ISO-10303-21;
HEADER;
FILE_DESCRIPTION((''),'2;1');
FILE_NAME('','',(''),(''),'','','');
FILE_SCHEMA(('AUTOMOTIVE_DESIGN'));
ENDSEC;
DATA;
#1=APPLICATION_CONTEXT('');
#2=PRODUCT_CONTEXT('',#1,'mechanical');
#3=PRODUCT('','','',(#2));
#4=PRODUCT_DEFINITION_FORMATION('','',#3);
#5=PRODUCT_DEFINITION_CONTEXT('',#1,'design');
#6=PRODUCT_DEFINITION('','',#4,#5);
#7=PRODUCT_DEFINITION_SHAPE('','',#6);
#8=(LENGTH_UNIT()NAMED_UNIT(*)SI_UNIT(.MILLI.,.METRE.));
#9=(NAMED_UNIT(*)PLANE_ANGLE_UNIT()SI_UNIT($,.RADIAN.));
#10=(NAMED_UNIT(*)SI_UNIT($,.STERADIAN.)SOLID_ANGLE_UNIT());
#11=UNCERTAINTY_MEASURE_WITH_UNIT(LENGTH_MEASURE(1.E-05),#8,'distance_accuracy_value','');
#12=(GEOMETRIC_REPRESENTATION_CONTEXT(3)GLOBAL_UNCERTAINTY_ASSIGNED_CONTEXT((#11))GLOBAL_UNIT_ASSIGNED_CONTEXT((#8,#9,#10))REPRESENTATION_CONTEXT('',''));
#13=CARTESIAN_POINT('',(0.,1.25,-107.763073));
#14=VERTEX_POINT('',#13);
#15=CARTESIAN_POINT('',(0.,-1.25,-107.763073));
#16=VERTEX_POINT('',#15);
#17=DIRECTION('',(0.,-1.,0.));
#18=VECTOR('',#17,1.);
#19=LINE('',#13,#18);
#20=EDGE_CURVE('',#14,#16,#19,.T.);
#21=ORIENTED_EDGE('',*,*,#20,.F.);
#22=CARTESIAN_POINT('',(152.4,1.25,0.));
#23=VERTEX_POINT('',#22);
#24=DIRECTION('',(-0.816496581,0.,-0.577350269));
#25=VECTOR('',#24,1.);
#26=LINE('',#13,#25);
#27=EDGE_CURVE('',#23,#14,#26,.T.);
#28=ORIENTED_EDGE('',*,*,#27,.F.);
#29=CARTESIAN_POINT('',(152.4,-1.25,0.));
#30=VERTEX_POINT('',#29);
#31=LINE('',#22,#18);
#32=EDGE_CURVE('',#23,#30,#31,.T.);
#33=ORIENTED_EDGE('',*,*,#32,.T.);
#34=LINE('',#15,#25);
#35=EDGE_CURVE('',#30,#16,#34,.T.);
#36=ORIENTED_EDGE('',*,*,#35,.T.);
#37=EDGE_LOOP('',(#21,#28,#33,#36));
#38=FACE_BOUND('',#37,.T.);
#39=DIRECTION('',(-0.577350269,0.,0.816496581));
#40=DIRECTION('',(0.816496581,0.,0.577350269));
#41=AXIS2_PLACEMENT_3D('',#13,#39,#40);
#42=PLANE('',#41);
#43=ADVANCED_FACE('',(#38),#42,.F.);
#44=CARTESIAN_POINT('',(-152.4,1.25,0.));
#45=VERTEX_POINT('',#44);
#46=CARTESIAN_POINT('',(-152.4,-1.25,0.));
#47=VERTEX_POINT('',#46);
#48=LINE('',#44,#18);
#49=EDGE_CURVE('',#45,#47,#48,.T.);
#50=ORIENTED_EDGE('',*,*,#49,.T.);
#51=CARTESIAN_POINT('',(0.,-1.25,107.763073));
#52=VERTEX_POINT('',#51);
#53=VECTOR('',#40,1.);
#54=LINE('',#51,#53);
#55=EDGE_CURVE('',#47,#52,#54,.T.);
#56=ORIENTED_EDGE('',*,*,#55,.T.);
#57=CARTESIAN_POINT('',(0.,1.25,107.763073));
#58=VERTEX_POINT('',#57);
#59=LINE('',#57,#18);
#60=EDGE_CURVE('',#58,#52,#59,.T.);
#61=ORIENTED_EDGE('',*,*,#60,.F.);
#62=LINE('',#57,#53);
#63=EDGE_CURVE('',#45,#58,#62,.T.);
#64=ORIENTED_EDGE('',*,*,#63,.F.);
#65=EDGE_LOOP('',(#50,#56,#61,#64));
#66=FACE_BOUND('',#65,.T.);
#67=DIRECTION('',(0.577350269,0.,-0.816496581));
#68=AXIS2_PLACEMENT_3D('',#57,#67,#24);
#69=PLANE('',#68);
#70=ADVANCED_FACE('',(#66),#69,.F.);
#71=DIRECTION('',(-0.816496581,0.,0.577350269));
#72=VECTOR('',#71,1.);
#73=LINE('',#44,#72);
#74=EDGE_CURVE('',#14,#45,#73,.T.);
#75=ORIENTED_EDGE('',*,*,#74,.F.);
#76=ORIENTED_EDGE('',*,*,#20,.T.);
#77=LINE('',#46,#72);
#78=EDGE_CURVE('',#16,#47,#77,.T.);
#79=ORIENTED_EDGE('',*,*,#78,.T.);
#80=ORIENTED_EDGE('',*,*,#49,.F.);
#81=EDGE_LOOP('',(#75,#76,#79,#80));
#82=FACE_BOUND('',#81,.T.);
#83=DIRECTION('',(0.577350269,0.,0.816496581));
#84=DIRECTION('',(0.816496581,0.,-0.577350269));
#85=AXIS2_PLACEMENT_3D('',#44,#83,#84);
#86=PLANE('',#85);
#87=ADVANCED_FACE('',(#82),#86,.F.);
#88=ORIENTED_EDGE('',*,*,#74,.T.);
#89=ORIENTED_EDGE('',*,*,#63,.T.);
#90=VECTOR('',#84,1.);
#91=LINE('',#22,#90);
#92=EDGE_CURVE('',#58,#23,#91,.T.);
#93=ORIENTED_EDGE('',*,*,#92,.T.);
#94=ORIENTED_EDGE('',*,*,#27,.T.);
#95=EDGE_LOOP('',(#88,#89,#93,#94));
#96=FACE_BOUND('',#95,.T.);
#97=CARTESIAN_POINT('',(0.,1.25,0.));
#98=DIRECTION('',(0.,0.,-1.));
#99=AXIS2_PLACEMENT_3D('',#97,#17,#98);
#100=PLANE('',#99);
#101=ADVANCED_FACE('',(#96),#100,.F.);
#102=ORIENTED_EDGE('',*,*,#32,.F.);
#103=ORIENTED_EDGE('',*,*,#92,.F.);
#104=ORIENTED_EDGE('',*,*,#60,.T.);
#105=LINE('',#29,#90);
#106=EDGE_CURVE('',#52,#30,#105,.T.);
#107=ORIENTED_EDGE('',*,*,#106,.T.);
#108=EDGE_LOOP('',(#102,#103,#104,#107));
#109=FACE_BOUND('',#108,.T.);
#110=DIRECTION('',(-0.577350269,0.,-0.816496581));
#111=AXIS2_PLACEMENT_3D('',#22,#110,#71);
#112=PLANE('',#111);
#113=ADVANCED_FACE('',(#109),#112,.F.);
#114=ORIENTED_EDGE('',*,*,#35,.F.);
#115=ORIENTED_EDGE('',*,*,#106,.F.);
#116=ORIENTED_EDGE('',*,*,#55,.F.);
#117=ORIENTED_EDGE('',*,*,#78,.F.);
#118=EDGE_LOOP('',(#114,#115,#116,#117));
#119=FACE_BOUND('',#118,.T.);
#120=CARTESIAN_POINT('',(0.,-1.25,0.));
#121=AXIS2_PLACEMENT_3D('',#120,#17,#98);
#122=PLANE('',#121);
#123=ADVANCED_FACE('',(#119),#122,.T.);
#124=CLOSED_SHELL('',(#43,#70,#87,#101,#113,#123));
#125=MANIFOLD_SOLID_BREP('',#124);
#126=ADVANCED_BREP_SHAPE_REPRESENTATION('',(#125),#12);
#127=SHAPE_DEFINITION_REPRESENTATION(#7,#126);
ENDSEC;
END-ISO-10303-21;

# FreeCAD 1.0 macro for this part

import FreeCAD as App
import Part
import Sketcher
from FreeCAD import Vector
Q = App.Units.Quantity


def add_polygon(sketch, points):
    """Adds a closed chain of lines whose ends are joined by coincident constraints."""
    first, n = sketch.GeometryCount, len(points)
    for a, b in zip(points, points[1:] + points[:1]):
        sketch.addGeometry(Part.LineSegment(App.Vector(*a, 0), App.Vector(*b, 0)), False)
    for i in range(n):
        sketch.addConstraint(Sketcher.Constraint("Coincident", first + i, 2, first + (i + 1) % n, 1))

doc = App.newDocument("Part")
body = doc.addObject("PartDesign::Body", "Body")

# Sketch on XZ plane
sketch1 = doc.addObject("Sketcher::SketchObject", "Sketch")
body.addObject(sketch1)
sketch1.AttachmentSupport = (doc.XZ_Plane, [""])
sketch1.MapMode = "FlatFace"
add_polygon(sketch1, [(0, -108), (-152, 0), (0, 108), (152, 0)])  # lines 0-3
sketch1.addConstraint(Sketcher.Constraint("Symmetric", 0, 2, 2, 2, -1, 1))
sketch1.addConstraint(Sketcher.Constraint("Symmetric", 1, 2, 3, 2, -1, 1))
sketch1.addConstraint(Sketcher.Constraint("PointOnObject", 0, 2, -1))
sketch1.addConstraint(Sketcher.Constraint("PointOnObject", 1, 2, -2))
sketch1.addConstraint(Sketcher.Constraint("DistanceX", 0, 2, -1, 1, Q("152.4 mm")))
sketch1.addConstraint(Sketcher.Constraint("Distance", 0, Q("186.651118 mm")))
pad1 = doc.addObject("PartDesign::Pad", "Pad")
body.addObject(pad1)
pad1.Profile = sketch1
pad1.Length = 2.5
pad1.Midplane = True

doc.recompute()
